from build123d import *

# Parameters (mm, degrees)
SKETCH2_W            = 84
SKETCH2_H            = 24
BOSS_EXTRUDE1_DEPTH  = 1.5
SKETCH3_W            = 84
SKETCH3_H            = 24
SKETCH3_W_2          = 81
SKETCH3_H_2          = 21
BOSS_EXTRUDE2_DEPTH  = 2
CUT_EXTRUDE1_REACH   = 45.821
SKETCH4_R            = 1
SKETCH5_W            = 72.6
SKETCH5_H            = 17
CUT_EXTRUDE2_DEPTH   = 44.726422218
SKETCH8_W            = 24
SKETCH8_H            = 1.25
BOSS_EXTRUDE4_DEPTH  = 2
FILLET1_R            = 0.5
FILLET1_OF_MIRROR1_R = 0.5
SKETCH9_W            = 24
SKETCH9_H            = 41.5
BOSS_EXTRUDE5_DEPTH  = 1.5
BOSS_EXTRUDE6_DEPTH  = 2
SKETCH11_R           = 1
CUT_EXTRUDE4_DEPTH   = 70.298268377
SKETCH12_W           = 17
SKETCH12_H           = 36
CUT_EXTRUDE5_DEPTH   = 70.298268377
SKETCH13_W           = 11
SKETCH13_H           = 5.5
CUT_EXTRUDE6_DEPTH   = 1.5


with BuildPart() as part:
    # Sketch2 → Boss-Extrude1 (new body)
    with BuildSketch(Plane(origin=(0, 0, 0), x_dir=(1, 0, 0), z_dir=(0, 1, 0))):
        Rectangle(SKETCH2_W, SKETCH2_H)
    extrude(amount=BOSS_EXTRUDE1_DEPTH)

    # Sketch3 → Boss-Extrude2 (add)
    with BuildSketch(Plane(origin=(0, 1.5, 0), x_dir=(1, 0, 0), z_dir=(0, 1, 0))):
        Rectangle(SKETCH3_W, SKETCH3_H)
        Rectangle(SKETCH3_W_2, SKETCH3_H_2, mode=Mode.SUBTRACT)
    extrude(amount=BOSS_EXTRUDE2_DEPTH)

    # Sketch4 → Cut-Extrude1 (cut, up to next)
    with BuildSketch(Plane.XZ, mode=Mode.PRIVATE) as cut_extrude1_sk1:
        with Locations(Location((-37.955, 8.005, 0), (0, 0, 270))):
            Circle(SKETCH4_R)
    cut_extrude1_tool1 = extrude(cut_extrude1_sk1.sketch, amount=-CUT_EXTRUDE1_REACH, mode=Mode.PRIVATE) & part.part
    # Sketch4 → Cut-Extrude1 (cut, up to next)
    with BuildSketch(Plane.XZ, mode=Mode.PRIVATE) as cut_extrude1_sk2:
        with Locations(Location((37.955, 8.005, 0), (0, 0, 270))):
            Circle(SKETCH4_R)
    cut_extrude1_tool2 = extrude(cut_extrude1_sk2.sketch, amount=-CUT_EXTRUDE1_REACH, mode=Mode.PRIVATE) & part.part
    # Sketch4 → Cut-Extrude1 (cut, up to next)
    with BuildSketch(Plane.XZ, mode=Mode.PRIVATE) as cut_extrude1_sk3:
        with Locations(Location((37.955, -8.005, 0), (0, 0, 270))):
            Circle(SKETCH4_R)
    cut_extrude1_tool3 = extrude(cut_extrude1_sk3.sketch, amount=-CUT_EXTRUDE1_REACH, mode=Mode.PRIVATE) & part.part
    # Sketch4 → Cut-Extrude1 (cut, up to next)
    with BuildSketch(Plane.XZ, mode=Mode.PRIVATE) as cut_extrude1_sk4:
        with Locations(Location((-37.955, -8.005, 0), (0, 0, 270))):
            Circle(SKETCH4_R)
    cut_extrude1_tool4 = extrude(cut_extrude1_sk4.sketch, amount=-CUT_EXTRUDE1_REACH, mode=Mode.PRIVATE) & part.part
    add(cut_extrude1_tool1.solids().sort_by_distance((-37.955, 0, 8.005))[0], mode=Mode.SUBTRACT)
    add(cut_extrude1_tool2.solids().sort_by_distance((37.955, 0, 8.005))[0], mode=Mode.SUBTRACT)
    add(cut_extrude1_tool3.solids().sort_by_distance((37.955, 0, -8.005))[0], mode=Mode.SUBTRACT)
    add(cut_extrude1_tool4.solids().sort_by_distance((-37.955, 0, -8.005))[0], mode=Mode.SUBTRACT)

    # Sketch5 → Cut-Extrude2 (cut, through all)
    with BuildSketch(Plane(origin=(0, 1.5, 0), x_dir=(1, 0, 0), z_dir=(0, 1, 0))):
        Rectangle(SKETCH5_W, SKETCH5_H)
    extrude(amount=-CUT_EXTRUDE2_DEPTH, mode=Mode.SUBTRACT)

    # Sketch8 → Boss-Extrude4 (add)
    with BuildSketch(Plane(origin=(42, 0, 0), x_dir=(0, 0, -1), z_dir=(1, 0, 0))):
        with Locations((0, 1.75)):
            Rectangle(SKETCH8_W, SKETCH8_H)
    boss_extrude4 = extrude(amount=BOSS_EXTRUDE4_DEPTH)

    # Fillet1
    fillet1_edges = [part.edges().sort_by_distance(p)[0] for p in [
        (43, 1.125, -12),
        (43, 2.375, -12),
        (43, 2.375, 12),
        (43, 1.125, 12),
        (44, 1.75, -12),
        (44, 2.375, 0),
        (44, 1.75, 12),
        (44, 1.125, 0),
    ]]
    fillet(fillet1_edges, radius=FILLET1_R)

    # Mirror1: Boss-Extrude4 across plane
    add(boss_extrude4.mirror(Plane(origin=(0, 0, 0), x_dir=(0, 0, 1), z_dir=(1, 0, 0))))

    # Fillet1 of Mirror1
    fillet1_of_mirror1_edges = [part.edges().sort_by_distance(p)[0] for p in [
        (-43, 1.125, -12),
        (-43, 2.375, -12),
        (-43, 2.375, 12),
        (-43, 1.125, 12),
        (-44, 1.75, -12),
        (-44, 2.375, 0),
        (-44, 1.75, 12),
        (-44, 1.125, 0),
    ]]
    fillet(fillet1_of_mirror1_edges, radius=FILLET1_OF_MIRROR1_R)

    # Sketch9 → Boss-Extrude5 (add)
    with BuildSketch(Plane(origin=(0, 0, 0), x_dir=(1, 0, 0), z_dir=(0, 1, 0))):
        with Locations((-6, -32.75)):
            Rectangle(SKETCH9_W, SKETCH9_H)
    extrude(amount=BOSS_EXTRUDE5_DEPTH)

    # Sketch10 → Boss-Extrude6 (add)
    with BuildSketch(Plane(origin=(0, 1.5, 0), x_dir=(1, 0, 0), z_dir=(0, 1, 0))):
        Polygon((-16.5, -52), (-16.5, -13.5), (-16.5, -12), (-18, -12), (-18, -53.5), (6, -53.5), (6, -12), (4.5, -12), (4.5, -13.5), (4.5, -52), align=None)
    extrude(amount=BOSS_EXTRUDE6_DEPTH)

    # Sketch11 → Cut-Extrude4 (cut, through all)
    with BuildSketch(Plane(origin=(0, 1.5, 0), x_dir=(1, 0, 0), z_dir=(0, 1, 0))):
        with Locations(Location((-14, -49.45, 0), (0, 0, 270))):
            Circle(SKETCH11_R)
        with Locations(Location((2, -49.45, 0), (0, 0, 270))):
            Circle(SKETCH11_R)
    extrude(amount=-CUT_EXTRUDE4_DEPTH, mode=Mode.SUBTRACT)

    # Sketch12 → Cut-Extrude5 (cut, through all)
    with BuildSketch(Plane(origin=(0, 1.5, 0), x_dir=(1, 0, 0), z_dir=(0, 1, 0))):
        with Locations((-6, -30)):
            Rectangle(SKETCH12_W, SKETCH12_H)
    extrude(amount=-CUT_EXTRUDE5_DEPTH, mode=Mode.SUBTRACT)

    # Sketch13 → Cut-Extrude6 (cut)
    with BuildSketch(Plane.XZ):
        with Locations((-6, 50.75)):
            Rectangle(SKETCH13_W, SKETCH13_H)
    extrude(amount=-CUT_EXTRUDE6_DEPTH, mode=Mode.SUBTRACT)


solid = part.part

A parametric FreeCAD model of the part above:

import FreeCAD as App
import Part
import Sketcher
from FreeCAD import Vector
Q = App.Units.Quantity


def edges_at(feature, points):
    """Names of the edges that pass closest to the given points."""
    edges = feature.Shape.Edges
    near = lambda p: min(range(len(edges)), key=lambda i: edges[i].distToShape(Part.Vertex(*p))[0])
    return sorted({f"Edge{near(p) + 1}" for p in points})


def add_polygon(sketch, points):
    """Adds a closed chain of lines whose ends are joined by coincident constraints."""
    first, n = sketch.GeometryCount, len(points)
    for a, b in zip(points, points[1:] + points[:1]):
        sketch.addGeometry(Part.LineSegment(App.Vector(*a, 0), App.Vector(*b, 0)), False)
    for i in range(n):
        sketch.addConstraint(Sketcher.Constraint("Coincident", first + i, 2, first + (i + 1) % n, 1))

doc = App.newDocument("Part")
body = doc.addObject("PartDesign::Body", "Body")

sketch1 = body.newObject("Sketcher::SketchObject", "Sketch")
sketch1.AttachmentSupport = (doc.getObject("XZ_Plane"), [""])
sketch1.MapMode = "FlatFace"
add_polygon(sketch1, [(-42, -12), (-42, 12), (42, 12), (42, -12)])
sketch1.addConstraint([
    Sketcher.Constraint("Vertical", 0),
    Sketcher.Constraint("Horizontal", 1),
    Sketcher.Constraint("Vertical", 2),
    Sketcher.Constraint("Horizontal", 3),
    Sketcher.Constraint("Symmetric", 0, 2, 2, 2, -1, 1),
    Sketcher.Constraint("DistanceX", 1, 1, 1, 2, Q("84 mm")),
    Sketcher.Constraint("DistanceY", 0, 1, 0, 2, Q("24 mm")),
])
pad1 = body.newObject("PartDesign::Pad", "Pad")
pad1.Profile = sketch1
pad1.Length = 1.5
pad1.Reversed = True

sketch2 = body.newObject("Sketcher::SketchObject", "Sketch001")
sketch2.AttachmentSupport = (doc.getObject("XZ_Plane"), [""])
sketch2.MapMode = "FlatFace"
sketch2.AttachmentOffset = App.Placement(Vector(0, 0, -1.5), App.Rotation())
add_polygon(sketch2, [(-42, -12), (-42, 12), (42, 12), (42, -12)])
add_polygon(sketch2, [(40, 10), (-40, 10), (-40, -10), (40, -10)])
sketch2.addConstraint([
    Sketcher.Constraint("Vertical", 0),
    Sketcher.Constraint("Horizontal", 1),
    Sketcher.Constraint("Vertical", 2),
    Sketcher.Constraint("Horizontal", 3),
    Sketcher.Constraint("Horizontal", 4),
    Sketcher.Constraint("Vertical", 5),
    Sketcher.Constraint("Horizontal", 6),
    Sketcher.Constraint("Vertical", 7),
    Sketcher.Constraint("Symmetric", 0, 2, 2, 2, -1, 1),
    Sketcher.Constraint("Symmetric", 4, 2, 6, 2, -1, 1),
    Sketcher.Constraint("DistanceX", 1, 1, 1, 2, Q("84 mm")),
    Sketcher.Constraint("DistanceX", 4, 2, 4, 1, Q("81 mm")),
    Sketcher.Constraint("DistanceY", 0, 1, 0, 2, Q("24 mm")),
    Sketcher.Constraint("DistanceY", 5, 2, 5, 1, Q("21 mm")),
])
pad2 = body.newObject("PartDesign::Pad", "Pad001")
pad2.Profile = sketch2
pad2.Length = 2
pad2.Reversed = True

sketch3 = body.newObject("Sketcher::SketchObject", "Sketch002")
sketch3.AttachmentSupport = (doc.getObject("XZ_Plane"), [""])
sketch3.MapMode = "FlatFace"
sketch3.addGeometry(Part.Circle(Vector(-38, 8, 0), Vector(0, 0, 1), 1), False)
sketch3.addConstraint([
    Sketcher.Constraint("Diameter", 0, Q("2 mm")),
    Sketcher.Constraint("DistanceX", 0, 3, -1, 1, Q("37.955 mm")),
    Sketcher.Constraint("DistanceY", -1, 1, 0, 3, Q("8.005 mm")),
])
pocket1 = body.newObject("PartDesign::Pocket", "Pocket")
pocket1.Profile = sketch3
pocket1.Type = "UpToFirst"

sketch4 = body.newObject("Sketcher::SketchObject", "Sketch003")
sketch4.AttachmentSupport = (doc.getObject("XZ_Plane"), [""])
sketch4.MapMode = "FlatFace"
sketch4.addGeometry(Part.Circle(Vector(38, 8, 0), Vector(0, 0, 1), 1), False)
sketch4.addConstraint([
    Sketcher.Constraint("Diameter", 0, Q("2 mm")),
    Sketcher.Constraint("DistanceX", -1, 1, 0, 3, Q("37.955 mm")),
    Sketcher.Constraint("DistanceY", -1, 1, 0, 3, Q("8.005 mm")),
])
pocket2 = body.newObject("PartDesign::Pocket", "Pocket001")
pocket2.Profile = sketch4
pocket2.Type = "UpToFirst"

sketch5 = body.newObject("Sketcher::SketchObject", "Sketch004")
sketch5.AttachmentSupport = (doc.getObject("XZ_Plane"), [""])
sketch5.MapMode = "FlatFace"
sketch5.addGeometry(Part.Circle(Vector(38, -8, 0), Vector(0, 0, 1), 1), False)
sketch5.addConstraint([
    Sketcher.Constraint("Diameter", 0, Q("2 mm")),
    Sketcher.Constraint("DistanceX", -1, 1, 0, 3, Q("37.955 mm")),
    Sketcher.Constraint("DistanceY", 0, 3, -1, 1, Q("8.005 mm")),
])
pocket3 = body.newObject("PartDesign::Pocket", "Pocket002")
pocket3.Profile = sketch5
pocket3.Type = "UpToFirst"

sketch6 = body.newObject("Sketcher::SketchObject", "Sketch005")
sketch6.AttachmentSupport = (doc.getObject("XZ_Plane"), [""])
sketch6.MapMode = "FlatFace"
sketch6.addGeometry(Part.Circle(Vector(-38, -8, 0), Vector(0, 0, 1), 1), False)
sketch6.addConstraint([
    Sketcher.Constraint("Diameter", 0, Q("2 mm")),
    Sketcher.Constraint("DistanceX", 0, 3, -1, 1, Q("37.955 mm")),
    Sketcher.Constraint("DistanceY", 0, 3, -1, 1, Q("8.005 mm")),
])
pocket4 = body.newObject("PartDesign::Pocket", "Pocket003")
pocket4.Profile = sketch6
pocket4.Type = "UpToFirst"

sketch7 = body.newObject("Sketcher::SketchObject", "Sketch006")
sketch7.AttachmentSupport = (doc.getObject("XZ_Plane"), [""])
sketch7.MapMode = "FlatFace"
sketch7.AttachmentOffset = App.Placement(Vector(0, 0, -1.5), App.Rotation())
add_polygon(sketch7, [(-36, -8), (-36, 8), (36, 8), (36, -8)])
sketch7.addConstraint([
    Sketcher.Constraint("Vertical", 0),
    Sketcher.Constraint("Horizontal", 1),
    Sketcher.Constraint("Vertical", 2),
    Sketcher.Constraint("Horizontal", 3),
    Sketcher.Constraint("Symmetric", 0, 2, 2, 2, -1, 1),
    Sketcher.Constraint("DistanceY", 0, 1, 0, 2, Q("17 mm")),
    Sketcher.Constraint("DistanceX", 1, 1, 1, 2, Q("72.6 mm")),
])
pocket5 = body.newObject("PartDesign::Pocket", "Pocket004")
pocket5.Profile = sketch7
pocket5.Type = "ThroughAll"
pocket5.Reversed = True

sketch8 = body.newObject("Sketcher::SketchObject", "Sketch007")
sketch8.AttachmentSupport = (doc.getObject("YZ_Plane"), [""])
sketch8.MapMode = "FlatFace"
sketch8.AttachmentOffset = App.Placement(Vector(0, 0, 42), App.Rotation())
add_polygon(sketch8, [(2.4, 12), (1.1, 12), (1.1, -12), (2.4, -12)])
sketch8.addConstraint([
    Sketcher.Constraint("Horizontal", 0),
    Sketcher.Constraint("Vertical", 1),
    Sketcher.Constraint("Horizontal", 2),
    Sketcher.Constraint("Vertical", 3),
    Sketcher.Constraint("DistanceY", 1, 2, 1, 1, Q("24 mm")),
    Sketcher.Constraint("DistanceY", -1, 1, 0, 2, Q("12 mm")),
    Sketcher.Constraint("DistanceX", 0, 2, 0, 1, Q("1.25 mm")),
    Sketcher.Constraint("DistanceX", -1, 1, 0, 2, Q("1.125 mm")),
])
pad3 = body.newObject("PartDesign::Pad", "Pad002")
pad3.Profile = sketch8
pad3.Length = 2
doc.recompute()

fillet = body.newObject("PartDesign::Fillet", "Fillet")
fillet.Base = (pad3, edges_at(pad3, [
    (43, 1.125, -12),
    (43, 2.375, -12),
    (43, 2.375, 12),
    (43, 1.125, 12),
    (44, 1.75, -12),
    (44, 2.375, 0),
    (44, 1.75, 12),
    (44, 1.125, 0),
]))
fillet.Radius = 0.5
doc.recompute()

mirrored = body.newObject("PartDesign::Mirrored", "Mirrored")
mirrored.Originals = [pad3]
mirrored.MirrorPlane = (doc.getObject("YZ_Plane"), [""])
body.Tip = mirrored
doc.recompute()

fillet2 = body.newObject("PartDesign::Fillet", "Fillet001")
fillet2.Base = (mirrored, edges_at(mirrored, [
    (-43, 1.125, -12),
    (-43, 2.375, -12),
    (-43, 2.375, 12),
    (-43, 1.125, 12),
    (-44, 1.75, -12),
    (-44, 2.375, 0),
    (-44, 1.75, 12),
    (-44, 1.125, 0),
]))
fillet2.Radius = 0.5

sketch9 = body.newObject("Sketcher::SketchObject", "Sketch008")
sketch9.AttachmentSupport = (doc.getObject("XZ_Plane"), [""])
sketch9.MapMode = "FlatFace"
add_polygon(sketch9, [(-18, 12), (-18, 54), (6, 54), (6, 12)])
sketch9.addConstraint([
    Sketcher.Constraint("Vertical", 0),
    Sketcher.Constraint("Horizontal", 1),
    Sketcher.Constraint("Vertical", 2),
    Sketcher.Constraint("Horizontal", 3),
    Sketcher.Constraint("DistanceX", 1, 1, 1, 2, Q("24 mm")),
    Sketcher.Constraint("DistanceY", 0, 1, 0, 2, Q("41.5 mm")),
    Sketcher.Constraint("DistanceX", 0, 2, -1, 1, Q("18 mm")),
    Sketcher.Constraint("DistanceY", -1, 1, 2, 2, Q("12 mm")),
])
pad4 = body.newObject("PartDesign::Pad", "Pad003")
pad4.Profile = sketch9
pad4.Length = 1.5
pad4.Reversed = True

sketch10 = body.newObject("Sketcher::SketchObject", "Sketch009")
sketch10.AttachmentSupport = (doc.getObject("XZ_Plane"), [""])
sketch10.MapMode = "FlatFace"
sketch10.AttachmentOffset = App.Placement(Vector(0, 0, -1.5), App.Rotation())
add_polygon(sketch10, [(-16.5, 52), (-16.5, 12), (-18, 12), (-18, 53.5), (6, 53.5), (6, 12), (4.5, 12), (4.5, 52)])
sketch10.addConstraint([
    Sketcher.Constraint("Vertical", 0),
    Sketcher.Constraint("Horizontal", 1),
    Sketcher.Constraint("Vertical", 2),
    Sketcher.Constraint("Horizontal", 3),
    Sketcher.Constraint("Vertical", 4),
    Sketcher.Constraint("Horizontal", 5),
    Sketcher.Constraint("Vertical", 6),
    Sketcher.Constraint("Horizontal", 7),
    Sketcher.Constraint("Horizontal", 1, 2, 4, 2),
    Sketcher.Constraint("Equal", 1, 5),
    Sketcher.Constraint("DistanceX", 3, 1, 3, 2, Q("24 mm")),
    Sketcher.Constraint("DistanceX", 7, 2, 7, 1, Q("21 mm")),
    Sketcher.Constraint("DistanceY", 0, 2, 0, 1, Q("40 mm")),
    Sketcher.Constraint("DistanceY", 2, 1, 2, 2, Q("41.5 mm")),
    Sketcher.Constraint("DistanceY", -1, 1, 0, 2, Q("12 mm")),
    Sketcher.Constraint("DistanceX", 1, 2, -1, 1, Q("18 mm")),
])
pad5 = body.newObject("PartDesign::Pad", "Pad004")
pad5.Profile = sketch10
pad5.Length = 2
pad5.Reversed = True

sketch11 = body.newObject("Sketcher::SketchObject", "Sketch010")
sketch11.AttachmentSupport = (doc.getObject("XZ_Plane"), [""])
sketch11.MapMode = "FlatFace"
sketch11.AttachmentOffset = App.Placement(Vector(0, 0, -1.5), App.Rotation())
sketch11.addGeometry([
    Part.Circle(Vector(-14, 49.5, 0), Vector(0, 0, 1), 1),
    Part.Circle(Vector(2, 49.5, 0), Vector(0, 0, 1), 1),
], False)
sketch11.addConstraint([
    Sketcher.Constraint("Equal", 0, 1),
    Sketcher.Constraint("Horizontal", 0, 3, 1, 3),
    Sketcher.Constraint("Diameter", 0, Q("2 mm")),
    Sketcher.Constraint("DistanceX", 0, 3, -1, 1, Q("14 mm")),
    Sketcher.Constraint("DistanceX", -1, 1, 1, 3, Q("2 mm")),
    Sketcher.Constraint("DistanceY", -1, 1, 0, 3, Q("49.45 mm")),
])
pocket6 = body.newObject("PartDesign::Pocket", "Pocket005")
pocket6.Profile = sketch11
pocket6.Type = "ThroughAll"
pocket6.Reversed = True

sketch12 = body.newObject("Sketcher::SketchObject", "Sketch011")
sketch12.AttachmentSupport = (doc.getObject("XZ_Plane"), [""])
sketch12.MapMode = "FlatFace"
sketch12.AttachmentOffset = App.Placement(Vector(0, 0, -1.5), App.Rotation())
add_polygon(sketch12, [(-14, 12), (-14, 48), (2, 48), (2, 12)])
sketch12.addConstraint([
    Sketcher.Constraint("Vertical", 0),
    Sketcher.Constraint("Horizontal", 1),
    Sketcher.Constraint("Vertical", 2),
    Sketcher.Constraint("Horizontal", 3),
    Sketcher.Constraint("DistanceX", 1, 1, 1, 2, Q("17 mm")),
    Sketcher.Constraint("DistanceY", 0, 1, 0, 2, Q("36 mm")),
    Sketcher.Constraint("DistanceY", -1, 1, 0, 2, Q("48 mm")),
    Sketcher.Constraint("DistanceX", 0, 2, -1, 1, Q("14.5 mm")),
])
pocket7 = body.newObject("PartDesign::Pocket", "Pocket006")
pocket7.Profile = sketch12
pocket7.Type = "ThroughAll"
pocket7.Reversed = True

sketch13 = body.newObject("Sketcher::SketchObject", "Sketch012")
sketch13.AttachmentSupport = (doc.getObject("XZ_Plane"), [""])
sketch13.MapMode = "FlatFace"
add_polygon(sketch13, [(-12, 54), (-12, 48), (0, 48), (0, 54)])
sketch13.addConstraint([
    Sketcher.Constraint("Vertical", 0),
    Sketcher.Constraint("Horizontal", 1),
    Sketcher.Constraint("Vertical", 2),
    Sketcher.Constraint("Horizontal", 3),
    Sketcher.Constraint("DistanceX", 1, 1, 1, 2, Q("11 mm")),
    Sketcher.Constraint("DistanceY", 0, 2, 0, 1, Q("5.5 mm")),
    Sketcher.Constraint("DistanceY", -1, 1, 0, 2, Q("48 mm")),
    Sketcher.Constraint("DistanceX", 0, 2, -1, 1, Q("11.5 mm")),
])
pocket8 = body.newObject("PartDesign::Pocket", "Pocket007")
pocket8.Profile = sketch13
pocket8.Length = 1.5

doc.recompute()
